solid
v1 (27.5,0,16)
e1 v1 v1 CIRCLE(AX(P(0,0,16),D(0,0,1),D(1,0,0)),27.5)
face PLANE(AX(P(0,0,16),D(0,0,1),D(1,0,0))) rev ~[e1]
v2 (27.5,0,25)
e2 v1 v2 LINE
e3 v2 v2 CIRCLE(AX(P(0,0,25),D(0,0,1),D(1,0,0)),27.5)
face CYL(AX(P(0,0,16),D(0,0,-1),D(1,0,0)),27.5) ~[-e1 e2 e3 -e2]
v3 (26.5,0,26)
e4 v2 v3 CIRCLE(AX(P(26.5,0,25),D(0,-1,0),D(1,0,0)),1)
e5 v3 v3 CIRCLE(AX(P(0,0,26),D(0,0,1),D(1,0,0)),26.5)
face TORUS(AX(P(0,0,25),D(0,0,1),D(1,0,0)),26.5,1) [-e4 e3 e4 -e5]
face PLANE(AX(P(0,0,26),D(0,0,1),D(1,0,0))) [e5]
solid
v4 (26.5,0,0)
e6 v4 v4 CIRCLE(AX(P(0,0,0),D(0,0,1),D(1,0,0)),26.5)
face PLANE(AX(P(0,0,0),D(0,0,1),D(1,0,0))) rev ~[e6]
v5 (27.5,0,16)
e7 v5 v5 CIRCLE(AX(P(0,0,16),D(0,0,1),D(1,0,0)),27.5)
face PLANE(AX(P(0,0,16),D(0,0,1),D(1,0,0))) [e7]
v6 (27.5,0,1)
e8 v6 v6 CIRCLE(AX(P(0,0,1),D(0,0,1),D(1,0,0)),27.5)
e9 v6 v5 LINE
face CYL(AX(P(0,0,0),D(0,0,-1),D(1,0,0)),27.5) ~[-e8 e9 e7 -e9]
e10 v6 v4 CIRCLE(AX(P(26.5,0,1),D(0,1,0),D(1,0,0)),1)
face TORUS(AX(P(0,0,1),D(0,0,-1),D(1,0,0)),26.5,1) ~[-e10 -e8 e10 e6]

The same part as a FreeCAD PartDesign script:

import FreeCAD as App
import Part
import Sketcher
from FreeCAD import Vector
Q = App.Units.Quantity


def edges_at(feature, points):
    """Names of the edges that pass closest to the given points."""
    edges = feature.Shape.Edges
    near = lambda p: min(range(len(edges)), key=lambda i: edges[i].distToShape(Part.Vertex(*p))[0])
    return sorted({f"Edge{near(p) + 1}" for p in points})

doc = App.newDocument("Part")
params = doc.addObject("Spreadsheet::Sheet", "Params")
for row, (alias, value) in enumerate([
    ("sketch1_diameter", "55 mm"),
    ("pad1_length", "16 mm"),
    ("fillet_radius", "1 mm"),
    ("sketch2_diameter", "55 mm"),
    ("pad2_length", "10 mm"),
    ("fillet2_radius", "1 mm"),
], start=1):
    params.set(f"A{row}", alias)
    params.set(f"B{row}", "=" + value)
    params.setAlias(f"B{row}", alias)

body = doc.addObject("PartDesign::Body", "Body")

# Sketch on XY plane
sketch1 = doc.addObject("Sketcher::SketchObject", "Sketch")
body.addObject(sketch1)
sketch1.AttachmentSupport = (doc.XY_Plane, [""])
sketch1.MapMode = "FlatFace"
sketch1.addGeometry(Part.Circle(Vector(0, 0, 0), Vector(0, 0, 1), 27.5), False)
sketch1.addConstraint([
    Sketcher.Constraint("Coincident", 0, 3, -1, 1),
    Sketcher.Constraint("Diameter", 0, Q("55 mm")),
])
sketch1.setExpression("Constraints[1]", "Params.sketch1_diameter")
pad1 = doc.addObject("PartDesign::Pad", "Pad")
body.addObject(pad1)
pad1.Profile = sketch1
pad1.setExpression("Length", "Params.pad1_length")
doc.recompute()

fillet = doc.addObject("PartDesign::Fillet", "Fillet")
body.addObject(fillet)
fillet.Base = (pad1, edges_at(pad1, [(-27.5, 0, 0)]))
fillet.setExpression("Radius", "Params.fillet_radius")
body2 = doc.addObject("PartDesign::Body", "Body001")

# Sketch on XY plane
sketch2 = doc.addObject("Sketcher::SketchObject", "Sketch001")
body2.addObject(sketch2)
sketch2.AttachmentSupport = (doc.getObject("XY_Plane001"), [""])
sketch2.MapMode = "FlatFace"
sketch2.AttachmentOffset = App.Placement(Vector(0, 0, 16), App.Rotation())
sketch2.addGeometry(Part.Circle(Vector(0, 0, 0), Vector(0, 0, 1), 27.5), False)
sketch2.addConstraint([
    Sketcher.Constraint("Coincident", 0, 3, -1, 1),
    Sketcher.Constraint("Diameter", 0, Q("55 mm")),
])
sketch2.setExpression("Constraints[1]", "Params.sketch2_diameter")
pad2 = doc.addObject("PartDesign::Pad", "Pad001")
body2.addObject(pad2)
pad2.Profile = sketch2
pad2.setExpression("Length", "Params.pad2_length")
doc.recompute()

fillet2 = doc.addObject("PartDesign::Fillet", "Fillet001")
body2.addObject(fillet2)
fillet2.Base = (pad2, edges_at(pad2, [(-27.5, 0, 26)]))
fillet2.setExpression("Radius", "Params.fillet2_radius")

doc.recompute()
